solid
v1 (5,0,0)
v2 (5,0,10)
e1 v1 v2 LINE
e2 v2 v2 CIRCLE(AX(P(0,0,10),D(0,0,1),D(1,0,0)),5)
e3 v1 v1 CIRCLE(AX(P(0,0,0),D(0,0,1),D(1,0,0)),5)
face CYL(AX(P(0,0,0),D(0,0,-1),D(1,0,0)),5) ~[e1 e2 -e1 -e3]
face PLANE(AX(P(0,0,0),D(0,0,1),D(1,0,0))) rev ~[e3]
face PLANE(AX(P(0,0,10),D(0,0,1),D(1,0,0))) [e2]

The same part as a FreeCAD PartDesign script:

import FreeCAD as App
import Part
import Sketcher

V = App.Vector

doc = App.newDocument("Part")
params = doc.addObject("Spreadsheet::Sheet", "Params")
for row, (alias, value) in enumerate([
    ("sketch1_diameter", "10 mm"),
    ("pad1_length", "10 mm"),
], start=1):
    params.set(f"A{row}", alias)
    params.set(f"B{row}", "=" + value)
    params.setAlias(f"B{row}", alias)

body = doc.addObject("PartDesign::Body", "Body")

sketch1 = body.newObject("Sketcher::SketchObject", "Sketch")
sketch1.AttachmentSupport = (doc.getObject("XY_Plane"), [""])
sketch1.MapMode = "FlatFace"
sketch1.addGeometry(Part.Circle(V(0, 0, 0), V(0, 0, 1), 5), False)
sketch1.addConstraint([
    Sketcher.Constraint("Coincident", 0, 3, -1, 1),
    Sketcher.Constraint("Diameter", 0, 10.0),
])
sketch1.setExpression("Constraints[1]", "Params.sketch1_diameter")
pad1 = body.newObject("PartDesign::Pad", "Pad")
pad1.Profile = sketch1
pad1.setExpression("Length", "Params.pad1_length")

doc.recompute()
